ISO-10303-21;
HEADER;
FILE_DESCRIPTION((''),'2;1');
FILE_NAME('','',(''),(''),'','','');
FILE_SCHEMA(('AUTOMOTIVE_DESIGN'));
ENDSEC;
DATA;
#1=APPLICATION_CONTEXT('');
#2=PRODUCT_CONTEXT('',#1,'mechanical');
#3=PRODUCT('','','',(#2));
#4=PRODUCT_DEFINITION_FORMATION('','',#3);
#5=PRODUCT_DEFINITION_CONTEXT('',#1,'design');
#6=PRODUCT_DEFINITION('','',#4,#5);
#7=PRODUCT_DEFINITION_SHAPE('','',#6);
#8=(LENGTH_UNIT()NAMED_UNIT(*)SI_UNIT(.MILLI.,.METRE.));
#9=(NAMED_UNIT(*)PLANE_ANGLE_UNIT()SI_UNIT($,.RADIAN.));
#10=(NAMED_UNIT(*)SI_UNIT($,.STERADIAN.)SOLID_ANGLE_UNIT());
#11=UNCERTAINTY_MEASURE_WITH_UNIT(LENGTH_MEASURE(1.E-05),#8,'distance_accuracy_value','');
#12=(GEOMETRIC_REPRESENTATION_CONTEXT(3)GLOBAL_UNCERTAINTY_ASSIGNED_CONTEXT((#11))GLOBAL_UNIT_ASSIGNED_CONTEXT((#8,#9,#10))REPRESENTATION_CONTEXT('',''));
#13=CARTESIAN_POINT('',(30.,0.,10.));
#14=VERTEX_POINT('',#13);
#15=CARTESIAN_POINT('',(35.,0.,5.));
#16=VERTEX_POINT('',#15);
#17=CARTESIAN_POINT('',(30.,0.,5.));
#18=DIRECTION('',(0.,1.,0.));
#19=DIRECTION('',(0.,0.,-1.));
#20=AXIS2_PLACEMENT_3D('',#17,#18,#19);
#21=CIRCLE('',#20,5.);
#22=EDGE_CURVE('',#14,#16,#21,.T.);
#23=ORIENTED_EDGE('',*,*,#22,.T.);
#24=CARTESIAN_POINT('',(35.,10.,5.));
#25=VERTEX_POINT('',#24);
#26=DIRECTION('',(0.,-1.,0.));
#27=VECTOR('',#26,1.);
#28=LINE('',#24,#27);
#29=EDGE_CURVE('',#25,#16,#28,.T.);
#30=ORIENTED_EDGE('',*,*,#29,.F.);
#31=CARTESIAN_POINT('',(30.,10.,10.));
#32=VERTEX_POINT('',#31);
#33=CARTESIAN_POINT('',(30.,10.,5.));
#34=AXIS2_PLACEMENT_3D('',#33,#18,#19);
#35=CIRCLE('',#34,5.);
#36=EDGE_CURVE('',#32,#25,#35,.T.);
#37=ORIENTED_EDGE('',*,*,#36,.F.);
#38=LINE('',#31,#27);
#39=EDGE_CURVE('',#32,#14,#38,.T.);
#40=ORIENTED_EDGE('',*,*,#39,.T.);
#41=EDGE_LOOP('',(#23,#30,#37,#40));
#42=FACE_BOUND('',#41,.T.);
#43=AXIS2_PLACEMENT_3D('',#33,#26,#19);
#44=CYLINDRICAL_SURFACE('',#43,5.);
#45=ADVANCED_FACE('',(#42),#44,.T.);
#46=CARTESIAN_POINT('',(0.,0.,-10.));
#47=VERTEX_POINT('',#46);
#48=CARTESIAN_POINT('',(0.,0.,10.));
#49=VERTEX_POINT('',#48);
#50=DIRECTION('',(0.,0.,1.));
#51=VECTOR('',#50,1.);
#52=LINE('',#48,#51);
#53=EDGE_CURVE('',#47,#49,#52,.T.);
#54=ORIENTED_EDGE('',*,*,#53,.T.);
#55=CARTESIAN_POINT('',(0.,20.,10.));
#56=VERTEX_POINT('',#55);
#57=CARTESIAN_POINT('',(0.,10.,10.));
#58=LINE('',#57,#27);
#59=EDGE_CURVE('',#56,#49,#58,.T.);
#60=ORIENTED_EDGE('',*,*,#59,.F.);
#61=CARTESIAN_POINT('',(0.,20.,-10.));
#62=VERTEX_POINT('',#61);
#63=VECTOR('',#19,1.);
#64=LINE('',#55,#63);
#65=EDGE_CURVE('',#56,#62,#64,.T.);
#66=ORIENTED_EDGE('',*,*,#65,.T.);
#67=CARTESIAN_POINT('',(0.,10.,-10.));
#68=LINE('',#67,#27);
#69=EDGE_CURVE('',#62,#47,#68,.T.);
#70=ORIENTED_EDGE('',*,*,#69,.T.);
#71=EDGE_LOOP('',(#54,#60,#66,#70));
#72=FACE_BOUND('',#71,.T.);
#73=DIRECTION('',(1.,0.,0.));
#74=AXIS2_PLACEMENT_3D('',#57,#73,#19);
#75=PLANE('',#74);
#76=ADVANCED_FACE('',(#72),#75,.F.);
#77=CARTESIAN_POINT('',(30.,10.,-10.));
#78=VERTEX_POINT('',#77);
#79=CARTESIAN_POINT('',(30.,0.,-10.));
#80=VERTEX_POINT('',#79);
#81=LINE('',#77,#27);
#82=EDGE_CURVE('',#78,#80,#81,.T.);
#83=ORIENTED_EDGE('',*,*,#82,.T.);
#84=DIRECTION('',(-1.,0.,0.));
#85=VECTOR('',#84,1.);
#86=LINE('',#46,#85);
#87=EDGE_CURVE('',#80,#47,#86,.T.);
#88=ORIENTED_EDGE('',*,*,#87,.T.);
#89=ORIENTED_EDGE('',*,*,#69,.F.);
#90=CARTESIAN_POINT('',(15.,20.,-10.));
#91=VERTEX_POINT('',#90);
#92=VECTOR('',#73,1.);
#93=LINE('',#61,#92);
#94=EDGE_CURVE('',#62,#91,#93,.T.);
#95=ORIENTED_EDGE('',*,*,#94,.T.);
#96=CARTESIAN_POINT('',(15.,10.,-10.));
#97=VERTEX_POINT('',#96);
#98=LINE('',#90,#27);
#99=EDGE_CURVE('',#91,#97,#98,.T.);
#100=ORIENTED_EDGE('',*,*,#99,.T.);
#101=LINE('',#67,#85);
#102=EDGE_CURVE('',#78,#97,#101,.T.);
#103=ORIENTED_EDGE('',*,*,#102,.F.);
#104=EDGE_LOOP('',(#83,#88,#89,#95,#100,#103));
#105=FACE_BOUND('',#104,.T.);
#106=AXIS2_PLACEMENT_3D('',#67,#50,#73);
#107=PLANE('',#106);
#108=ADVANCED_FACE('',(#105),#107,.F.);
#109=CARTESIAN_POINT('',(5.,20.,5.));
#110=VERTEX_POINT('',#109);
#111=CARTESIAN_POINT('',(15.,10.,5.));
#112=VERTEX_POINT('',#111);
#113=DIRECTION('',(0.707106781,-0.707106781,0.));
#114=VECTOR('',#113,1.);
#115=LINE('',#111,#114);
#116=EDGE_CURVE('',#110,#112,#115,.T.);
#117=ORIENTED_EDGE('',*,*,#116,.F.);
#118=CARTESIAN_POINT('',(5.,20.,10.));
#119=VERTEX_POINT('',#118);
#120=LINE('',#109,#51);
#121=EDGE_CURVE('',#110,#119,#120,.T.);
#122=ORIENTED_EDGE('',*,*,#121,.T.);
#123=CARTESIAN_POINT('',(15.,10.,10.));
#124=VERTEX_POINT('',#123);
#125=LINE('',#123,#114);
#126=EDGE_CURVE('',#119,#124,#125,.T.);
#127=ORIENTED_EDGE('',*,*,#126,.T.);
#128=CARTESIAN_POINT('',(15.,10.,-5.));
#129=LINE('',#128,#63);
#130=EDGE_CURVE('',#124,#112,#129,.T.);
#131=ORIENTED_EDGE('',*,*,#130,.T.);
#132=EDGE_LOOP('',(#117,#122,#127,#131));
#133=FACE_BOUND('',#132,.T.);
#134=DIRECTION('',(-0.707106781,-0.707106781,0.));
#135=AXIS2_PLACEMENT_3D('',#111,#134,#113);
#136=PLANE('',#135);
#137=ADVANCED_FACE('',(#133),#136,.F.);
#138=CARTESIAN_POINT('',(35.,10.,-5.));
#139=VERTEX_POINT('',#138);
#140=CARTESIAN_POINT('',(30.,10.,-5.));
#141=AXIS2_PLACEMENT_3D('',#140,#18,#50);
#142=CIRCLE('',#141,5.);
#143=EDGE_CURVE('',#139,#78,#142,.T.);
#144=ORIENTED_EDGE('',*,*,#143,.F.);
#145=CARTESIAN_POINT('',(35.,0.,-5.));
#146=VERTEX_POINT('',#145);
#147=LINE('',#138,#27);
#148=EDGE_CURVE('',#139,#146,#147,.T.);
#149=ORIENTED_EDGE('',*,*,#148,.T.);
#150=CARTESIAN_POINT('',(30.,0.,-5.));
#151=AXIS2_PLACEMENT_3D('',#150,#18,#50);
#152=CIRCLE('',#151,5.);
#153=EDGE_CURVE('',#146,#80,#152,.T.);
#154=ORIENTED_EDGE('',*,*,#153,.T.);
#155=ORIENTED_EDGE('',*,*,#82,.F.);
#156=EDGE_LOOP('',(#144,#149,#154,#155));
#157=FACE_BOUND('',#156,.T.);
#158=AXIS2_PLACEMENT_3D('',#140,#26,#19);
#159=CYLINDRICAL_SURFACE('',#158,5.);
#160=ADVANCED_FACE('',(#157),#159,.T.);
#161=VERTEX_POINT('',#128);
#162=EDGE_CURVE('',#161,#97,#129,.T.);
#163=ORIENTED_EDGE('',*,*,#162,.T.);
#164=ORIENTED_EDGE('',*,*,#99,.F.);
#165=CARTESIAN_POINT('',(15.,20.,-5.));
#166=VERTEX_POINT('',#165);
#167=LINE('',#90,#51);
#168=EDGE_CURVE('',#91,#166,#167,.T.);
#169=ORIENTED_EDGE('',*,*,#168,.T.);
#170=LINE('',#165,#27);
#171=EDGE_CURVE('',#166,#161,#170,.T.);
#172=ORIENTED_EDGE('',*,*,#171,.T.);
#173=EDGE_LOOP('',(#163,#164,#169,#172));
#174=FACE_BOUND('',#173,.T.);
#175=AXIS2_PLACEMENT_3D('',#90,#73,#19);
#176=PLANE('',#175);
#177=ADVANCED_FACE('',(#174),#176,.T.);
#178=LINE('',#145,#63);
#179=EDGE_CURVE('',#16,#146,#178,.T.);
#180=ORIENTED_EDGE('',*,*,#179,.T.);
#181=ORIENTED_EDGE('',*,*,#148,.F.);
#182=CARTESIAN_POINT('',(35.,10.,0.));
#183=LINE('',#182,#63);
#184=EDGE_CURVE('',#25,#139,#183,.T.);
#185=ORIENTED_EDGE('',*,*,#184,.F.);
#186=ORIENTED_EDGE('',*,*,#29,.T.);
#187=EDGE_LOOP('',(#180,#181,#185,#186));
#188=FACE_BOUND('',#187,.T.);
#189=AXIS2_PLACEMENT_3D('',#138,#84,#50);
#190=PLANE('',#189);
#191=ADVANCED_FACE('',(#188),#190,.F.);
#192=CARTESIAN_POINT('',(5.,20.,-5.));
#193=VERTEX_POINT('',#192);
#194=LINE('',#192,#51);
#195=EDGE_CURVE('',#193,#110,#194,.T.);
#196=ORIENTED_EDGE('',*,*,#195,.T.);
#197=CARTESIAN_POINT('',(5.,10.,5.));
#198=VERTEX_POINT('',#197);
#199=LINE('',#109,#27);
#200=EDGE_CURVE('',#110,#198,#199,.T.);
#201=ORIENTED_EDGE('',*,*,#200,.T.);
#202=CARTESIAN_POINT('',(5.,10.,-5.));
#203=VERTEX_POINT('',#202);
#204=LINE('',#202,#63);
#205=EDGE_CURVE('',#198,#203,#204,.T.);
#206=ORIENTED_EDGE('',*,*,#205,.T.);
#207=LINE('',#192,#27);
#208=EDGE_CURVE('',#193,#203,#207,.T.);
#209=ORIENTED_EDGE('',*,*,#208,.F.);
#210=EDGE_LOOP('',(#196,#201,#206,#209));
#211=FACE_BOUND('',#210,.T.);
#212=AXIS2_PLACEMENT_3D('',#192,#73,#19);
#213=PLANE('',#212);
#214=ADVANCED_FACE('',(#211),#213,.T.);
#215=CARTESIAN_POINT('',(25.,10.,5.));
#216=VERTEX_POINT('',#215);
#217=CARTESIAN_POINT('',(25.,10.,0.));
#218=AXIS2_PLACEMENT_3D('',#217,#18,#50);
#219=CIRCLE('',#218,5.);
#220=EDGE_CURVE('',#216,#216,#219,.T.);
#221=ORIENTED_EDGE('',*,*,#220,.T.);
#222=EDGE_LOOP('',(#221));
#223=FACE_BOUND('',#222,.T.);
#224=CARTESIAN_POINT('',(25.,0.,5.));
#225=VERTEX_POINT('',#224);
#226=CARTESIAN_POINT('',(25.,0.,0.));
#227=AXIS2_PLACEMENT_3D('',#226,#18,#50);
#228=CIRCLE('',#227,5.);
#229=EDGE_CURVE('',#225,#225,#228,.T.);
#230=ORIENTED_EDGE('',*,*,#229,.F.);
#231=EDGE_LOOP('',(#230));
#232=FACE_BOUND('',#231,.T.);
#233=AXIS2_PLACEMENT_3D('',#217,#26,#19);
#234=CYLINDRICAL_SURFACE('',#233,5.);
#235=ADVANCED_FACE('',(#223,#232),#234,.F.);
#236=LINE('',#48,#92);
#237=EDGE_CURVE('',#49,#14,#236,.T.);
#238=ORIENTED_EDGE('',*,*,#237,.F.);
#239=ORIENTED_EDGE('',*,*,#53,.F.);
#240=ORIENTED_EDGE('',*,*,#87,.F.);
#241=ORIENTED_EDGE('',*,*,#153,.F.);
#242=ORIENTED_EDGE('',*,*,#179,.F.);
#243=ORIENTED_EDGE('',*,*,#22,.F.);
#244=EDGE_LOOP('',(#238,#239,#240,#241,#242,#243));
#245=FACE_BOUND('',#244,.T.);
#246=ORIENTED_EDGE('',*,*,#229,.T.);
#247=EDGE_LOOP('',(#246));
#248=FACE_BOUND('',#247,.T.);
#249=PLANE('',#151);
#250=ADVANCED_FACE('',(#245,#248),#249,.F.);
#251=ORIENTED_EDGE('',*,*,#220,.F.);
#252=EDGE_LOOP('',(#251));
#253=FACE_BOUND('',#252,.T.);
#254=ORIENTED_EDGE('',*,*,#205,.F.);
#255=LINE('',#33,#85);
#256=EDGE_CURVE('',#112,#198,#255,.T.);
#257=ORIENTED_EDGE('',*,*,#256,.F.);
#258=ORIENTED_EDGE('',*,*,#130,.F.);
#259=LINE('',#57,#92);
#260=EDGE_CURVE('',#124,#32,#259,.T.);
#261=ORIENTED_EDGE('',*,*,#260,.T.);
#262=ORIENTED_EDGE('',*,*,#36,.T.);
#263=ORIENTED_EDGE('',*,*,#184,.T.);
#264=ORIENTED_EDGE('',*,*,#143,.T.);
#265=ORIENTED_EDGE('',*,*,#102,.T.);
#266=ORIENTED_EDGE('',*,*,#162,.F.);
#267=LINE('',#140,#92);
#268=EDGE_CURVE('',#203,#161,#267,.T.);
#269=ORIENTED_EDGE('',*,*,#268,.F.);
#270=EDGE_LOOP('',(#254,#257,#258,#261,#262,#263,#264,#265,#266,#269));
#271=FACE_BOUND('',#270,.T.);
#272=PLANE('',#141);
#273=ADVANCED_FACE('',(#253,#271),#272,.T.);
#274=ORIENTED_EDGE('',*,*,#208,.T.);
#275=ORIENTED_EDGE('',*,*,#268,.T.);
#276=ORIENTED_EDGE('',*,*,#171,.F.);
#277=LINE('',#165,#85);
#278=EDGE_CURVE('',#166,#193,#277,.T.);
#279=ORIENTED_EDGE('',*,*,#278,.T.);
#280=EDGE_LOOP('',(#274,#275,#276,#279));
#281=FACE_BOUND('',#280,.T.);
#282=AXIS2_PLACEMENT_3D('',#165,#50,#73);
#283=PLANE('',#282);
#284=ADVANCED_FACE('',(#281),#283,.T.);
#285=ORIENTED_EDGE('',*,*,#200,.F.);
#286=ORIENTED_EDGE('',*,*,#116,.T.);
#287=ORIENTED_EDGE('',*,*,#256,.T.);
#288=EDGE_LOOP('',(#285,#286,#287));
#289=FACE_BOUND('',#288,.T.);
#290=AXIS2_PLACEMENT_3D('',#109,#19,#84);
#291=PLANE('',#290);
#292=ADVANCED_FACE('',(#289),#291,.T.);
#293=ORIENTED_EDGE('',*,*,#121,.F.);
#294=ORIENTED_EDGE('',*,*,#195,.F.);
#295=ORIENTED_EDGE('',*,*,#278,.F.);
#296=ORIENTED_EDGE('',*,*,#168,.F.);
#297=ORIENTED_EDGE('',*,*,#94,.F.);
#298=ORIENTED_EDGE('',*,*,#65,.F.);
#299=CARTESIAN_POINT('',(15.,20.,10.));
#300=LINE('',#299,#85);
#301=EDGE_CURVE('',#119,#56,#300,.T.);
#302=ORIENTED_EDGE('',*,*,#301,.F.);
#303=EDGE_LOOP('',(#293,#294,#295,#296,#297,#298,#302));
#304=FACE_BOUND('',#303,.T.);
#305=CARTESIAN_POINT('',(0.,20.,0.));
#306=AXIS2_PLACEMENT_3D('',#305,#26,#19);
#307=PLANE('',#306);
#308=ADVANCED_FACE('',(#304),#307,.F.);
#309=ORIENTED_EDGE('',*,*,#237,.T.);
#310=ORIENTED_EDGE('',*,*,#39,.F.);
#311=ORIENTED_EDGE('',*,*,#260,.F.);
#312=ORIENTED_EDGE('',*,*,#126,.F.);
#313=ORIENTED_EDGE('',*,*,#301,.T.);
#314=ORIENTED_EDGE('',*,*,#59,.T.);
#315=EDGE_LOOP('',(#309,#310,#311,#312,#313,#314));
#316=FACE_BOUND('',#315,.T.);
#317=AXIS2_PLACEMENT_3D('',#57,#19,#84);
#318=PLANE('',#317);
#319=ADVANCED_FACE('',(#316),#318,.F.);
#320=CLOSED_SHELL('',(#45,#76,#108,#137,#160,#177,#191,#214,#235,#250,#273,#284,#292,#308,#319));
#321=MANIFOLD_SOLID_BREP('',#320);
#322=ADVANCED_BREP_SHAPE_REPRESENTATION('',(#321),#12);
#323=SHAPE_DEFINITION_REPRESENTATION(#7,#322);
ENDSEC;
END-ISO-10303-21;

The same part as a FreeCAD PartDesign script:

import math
import FreeCAD as App
import Part
import Sketcher

V = App.Vector

doc = App.newDocument("Part")
body = doc.addObject("PartDesign::Body", "Body")

sketch1 = body.newObject("Sketcher::SketchObject", "Sketch")
sketch1.AttachmentSupport = (doc.getObject("XZ_Plane"), [""])
sketch1.MapMode = "FlatFace"
sketch1.addGeometry([
    Part.LineSegment(V(0, -10, 0), V(0, 10, 0)),
    Part.LineSegment(V(0, 10, 0), V(30, 10, 0)),
    Part.ArcOfCircle(Part.Circle(V(30, 5, 0), V(0, 0, 1), 5), math.radians(0), math.radians(90)),
    Part.LineSegment(V(35, 5, 0), V(35, -5, 0)),
    Part.ArcOfCircle(Part.Circle(V(30, -5, 0), V(0, 0, 1), 5), math.radians(-90), math.radians(0)),
    Part.LineSegment(V(30, -10, 0), V(0, -10, 0)),
    Part.Circle(V(25, 0, 0), V(0, 0, 1), 5),
], False)
sketch1.addConstraint([
    Sketcher.Constraint("Coincident", 0, 2, 1, 1),
    Sketcher.Constraint("Tangent", 1, 2, 2, 2),
    Sketcher.Constraint("Tangent", 2, 1, 3, 1),
    Sketcher.Constraint("Tangent", 3, 2, 4, 2),
    Sketcher.Constraint("Tangent", 4, 1, 5, 1),
    Sketcher.Constraint("Coincident", 5, 2, 0, 1),
    Sketcher.Constraint("Vertical", 0),
    Sketcher.Constraint("Horizontal", 1),
    Sketcher.Constraint("Vertical", 3),
    Sketcher.Constraint("Horizontal", 5),
    Sketcher.Constraint("Equal", 2, 4),
    Sketcher.Constraint("Equal", 4, 6),
    Sketcher.Constraint("Symmetric", 0, 2, 5, 2, -1, 1),
    Sketcher.Constraint("PointOnObject", 6, 3, -1),
    Sketcher.Constraint("Diameter", 6, 10.0),
    Sketcher.Constraint("DistanceX", 1, 1, 1, 2, 30.0),
    Sketcher.Constraint("DistanceY", 0, 1, 0, 2, 20.0),
    Sketcher.Constraint("DistanceX", -1, 1, 6, 3, 25.0),
])
pad1 = body.newObject("PartDesign::Pad", "Pad")
pad1.Profile = sketch1
pad1.Length = 10
pad1.Reversed = True

sketch2 = body.newObject("Sketcher::SketchObject", "Sketch001")
sketch2.AttachmentSupport = (doc.getObject("XZ_Plane"), [""])
sketch2.MapMode = "FlatFace"
sketch2.addGeometry([
    Part.LineSegment(V(0, -10, 0), V(0, 10, 0)),
    Part.LineSegment(V(0, 10, 0), V(15, 10, 0)),
    Part.LineSegment(V(15, 10, 0), V(15, 5, 0)),
    Part.LineSegment(V(15, 5, 0), V(5, 5, 0)),
    Part.LineSegment(V(5, 5, 0), V(5, -5, 0)),
    Part.LineSegment(V(5, -5, 0), V(15, -5, 0)),
    Part.LineSegment(V(15, -5, 0), V(15, -10, 0)),
    Part.LineSegment(V(15, -10, 0), V(0, -10, 0)),
], False)
sketch2.addConstraint([
    Sketcher.Constraint("Coincident", 0, 2, 1, 1),
    Sketcher.Constraint("Coincident", 1, 2, 2, 1),
    Sketcher.Constraint("Coincident", 2, 2, 3, 1),
    Sketcher.Constraint("Coincident", 3, 2, 4, 1),
    Sketcher.Constraint("Coincident", 4, 2, 5, 1),
    Sketcher.Constraint("Coincident", 5, 2, 6, 1),
    Sketcher.Constraint("Coincident", 6, 2, 7, 1),
    Sketcher.Constraint("Coincident", 7, 2, 0, 1),
    Sketcher.Constraint("Vertical", 0),
    Sketcher.Constraint("Horizontal", 1),
    Sketcher.Constraint("Vertical", 2),
    Sketcher.Constraint("Horizontal", 3),
    Sketcher.Constraint("Vertical", 4),
    Sketcher.Constraint("Horizontal", 5),
    Sketcher.Constraint("Vertical", 6),
    Sketcher.Constraint("Horizontal", 7),
    Sketcher.Constraint("Symmetric", 0, 2, 7, 2, -1, 1),
    Sketcher.Constraint("Symmetric", 2, 2, 5, 2, -1),
    Sketcher.Constraint("Equal", 5, 4),
    Sketcher.Constraint("DistanceX", 1, 1, 1, 2, 15.0),
    Sketcher.Constraint("DistanceX", 3, 2, 3, 1, 10.0),
    Sketcher.Constraint("DistanceY", 0, 1, 0, 2, 20.0),
])
pad2 = body.newObject("PartDesign::Pad", "Pad001")
pad2.Profile = sketch2
pad2.Length = 20
pad2.Reversed = True

sketch3 = body.newObject("Sketcher::SketchObject", "Sketch002")
sketch3.AttachmentSupport = (doc.getObject("XY_Plane"), [""])
sketch3.MapMode = "FlatFace"
sketch3.AttachmentOffset = App.Placement(V(0, 0, 10), App.Rotation())
sketch3.addGeometry([
    Part.LineSegment(V(5, 20, 0), V(15, 10, 0)),
    Part.LineSegment(V(15, 10, 0), V(15, 20, 0)),
    Part.LineSegment(V(15, 20, 0), V(5, 20, 0)),
], False)
sketch3.addConstraint([
    Sketcher.Constraint("Coincident", 0, 2, 1, 1),
    Sketcher.Constraint("Coincident", 1, 2, 2, 1),
    Sketcher.Constraint("Coincident", 2, 2, 0, 1),
    Sketcher.Constraint("Vertical", 1),
    Sketcher.Constraint("Horizontal", 2),
    Sketcher.Constraint("Equal", 2, 1),
    Sketcher.Constraint("DistanceX", 2, 2, 2, 1, 10.0),
    Sketcher.Constraint("DistanceX", -1, 1, 0, 2, 15.0),
    Sketcher.Constraint("DistanceY", -1, 1, 0, 2, 10.0),
])
pocket1 = body.newObject("PartDesign::Pocket", "Pocket")
pocket1.Profile = sketch3
pocket1.Length = 5

doc.recompute()
